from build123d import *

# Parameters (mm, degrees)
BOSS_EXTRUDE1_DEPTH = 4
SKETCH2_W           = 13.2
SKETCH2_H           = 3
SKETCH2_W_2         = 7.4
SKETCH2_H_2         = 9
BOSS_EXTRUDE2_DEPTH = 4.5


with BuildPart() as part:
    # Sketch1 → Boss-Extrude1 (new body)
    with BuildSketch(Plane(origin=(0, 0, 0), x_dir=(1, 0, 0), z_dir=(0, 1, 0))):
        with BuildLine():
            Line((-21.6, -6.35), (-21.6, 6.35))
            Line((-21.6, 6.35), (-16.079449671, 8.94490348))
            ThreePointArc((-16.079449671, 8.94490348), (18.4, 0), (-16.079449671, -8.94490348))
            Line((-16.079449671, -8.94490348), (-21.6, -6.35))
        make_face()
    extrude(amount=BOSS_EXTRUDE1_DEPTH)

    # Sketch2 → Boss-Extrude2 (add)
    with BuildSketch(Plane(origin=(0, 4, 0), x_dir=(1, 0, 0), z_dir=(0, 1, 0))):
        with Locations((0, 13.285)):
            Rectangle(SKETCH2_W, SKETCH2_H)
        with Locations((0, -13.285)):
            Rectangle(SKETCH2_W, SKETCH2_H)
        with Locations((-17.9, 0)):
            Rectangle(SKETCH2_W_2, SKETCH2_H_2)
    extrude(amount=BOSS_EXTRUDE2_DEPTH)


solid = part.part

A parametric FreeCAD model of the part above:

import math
import FreeCAD as App
import Part
import Sketcher

doc = App.newDocument("Part")
params = doc.addObject("Spreadsheet::Sheet", "Params")
for row, (alias, value) in enumerate([
    ("sketch1_radius", "18.4 mm"),
    ("sketch1_height", "12.7 mm"),
    ("sketch1_length", "6.1 mm"),
    ("pad1_length", "4 mm"),
    ("sketch2_height", "3 mm"),
    ("sketch2_height2", "9 mm"),
    ("sketch2_width", "13.2 mm"),
    ("sketch2_width2", "7.4 mm"),
    ("pad2_length", "4.5 mm"),
], start=1):
    params.set(f"A{row}", alias)
    params.set(f"B{row}", "=" + value)
    params.setAlias(f"B{row}", alias)

body = doc.addObject("PartDesign::Body", "Body")

sketch1 = body.newObject("Sketcher::SketchObject", "Sketch")
sketch1.AttachmentSupport = (doc.getObject("XZ_Plane"), [""])
sketch1.MapMode = "FlatFace"
sketch1.addGeometry([
    Part.LineSegment(App.Vector(-21.6, -6.35, 0), App.Vector(-21.6, 6.35, 0)),
    Part.LineSegment(App.Vector(-21.6, 6.35, 0), App.Vector(-16.07945, 8.944903, 0)),
    Part.ArcOfCircle(Part.Circle(App.Vector(0, 0, 0), App.Vector(0, 0, 1), 18.4), math.radians(-150.913069), math.radians(150.913069)),
    Part.LineSegment(App.Vector(-16.07945, -8.944903, 0), App.Vector(-21.6, -6.35, 0)),
], False)
sketch1.addConstraint([
    Sketcher.Constraint("Coincident", 0, 2, 1, 1),
    Sketcher.Constraint("Coincident", 1, 2, 2, 2),
    Sketcher.Constraint("Coincident", 2, 1, 3, 1),
    Sketcher.Constraint("Coincident", 3, 2, 0, 1),
    Sketcher.Constraint("Vertical", 0),
    Sketcher.Constraint("Coincident", 2, 3, -1, 1),
    Sketcher.Constraint("Vertical", 1, 2, 2, 1),
    Sketcher.Constraint("Equal", 1, 3),
    Sketcher.Constraint("Radius", 2, 18.4),
    Sketcher.Constraint("DistanceY", 0, 1, 0, 2, 12.7),
    Sketcher.Constraint("Distance", 1, 6.1),
    Sketcher.Constraint("DistanceX", 0, 2, -1, 1, 21.6),
])
sketch1.setExpression("Constraints[8]", "Params.sketch1_radius")
sketch1.setExpression("Constraints[9]", "Params.sketch1_height")
sketch1.setExpression("Constraints[10]", "Params.sketch1_length")
pad1 = body.newObject("PartDesign::Pad", "Pad")
pad1.Profile = sketch1
pad1.setExpression("Length", "Params.pad1_length")
pad1.Reversed = True

sketch2 = body.newObject("Sketcher::SketchObject", "Sketch001")
sketch2.AttachmentSupport = (doc.getObject("XZ_Plane"), [""])
sketch2.MapMode = "FlatFace"
sketch2.AttachmentOffset = App.Placement(App.Vector(0, 0, -4), App.Rotation())
sketch2.addGeometry([
    Part.LineSegment(App.Vector(-6.6, -14.785, 0), App.Vector(-6.6, -11.785, 0)),
    Part.LineSegment(App.Vector(-6.6, -11.785, 0), App.Vector(6.6, -11.785, 0)),
    Part.LineSegment(App.Vector(6.6, -11.785, 0), App.Vector(6.6, -14.785, 0)),
    Part.LineSegment(App.Vector(6.6, -14.785, 0), App.Vector(-6.6, -14.785, 0)),
    Part.LineSegment(App.Vector(-6.6, 11.785, 0), App.Vector(-6.6, 14.785, 0)),
    Part.LineSegment(App.Vector(-6.6, 14.785, 0), App.Vector(6.6, 14.785, 0)),
    Part.LineSegment(App.Vector(6.6, 14.785, 0), App.Vector(6.6, 11.785, 0)),
    Part.LineSegment(App.Vector(6.6, 11.785, 0), App.Vector(-6.6, 11.785, 0)),
    Part.LineSegment(App.Vector(-21.6, -4.5, 0), App.Vector(-21.6, 4.5, 0)),
    Part.LineSegment(App.Vector(-21.6, 4.5, 0), App.Vector(-14.2, 4.5, 0)),
    Part.LineSegment(App.Vector(-14.2, 4.5, 0), App.Vector(-14.2, -4.5, 0)),
    Part.LineSegment(App.Vector(-14.2, -4.5, 0), App.Vector(-21.6, -4.5, 0)),
], False)
sketch2.addConstraint([
    Sketcher.Constraint("Coincident", 0, 2, 1, 1),
    Sketcher.Constraint("Coincident", 1, 2, 2, 1),
    Sketcher.Constraint("Coincident", 2, 2, 3, 1),
    Sketcher.Constraint("Coincident", 3, 2, 0, 1),
    Sketcher.Constraint("Coincident", 4, 2, 5, 1),
    Sketcher.Constraint("Coincident", 5, 2, 6, 1),
    Sketcher.Constraint("Coincident", 6, 2, 7, 1),
    Sketcher.Constraint("Coincident", 7, 2, 4, 1),
    Sketcher.Constraint("Coincident", 8, 2, 9, 1),
    Sketcher.Constraint("Coincident", 9, 2, 10, 1),
    Sketcher.Constraint("Coincident", 10, 2, 11, 1),
    Sketcher.Constraint("Coincident", 11, 2, 8, 1),
    Sketcher.Constraint("Vertical", 0),
    Sketcher.Constraint("Horizontal", 1),
    Sketcher.Constraint("Vertical", 2),
    Sketcher.Constraint("Horizontal", 3),
    Sketcher.Constraint("Vertical", 4),
    Sketcher.Constraint("Horizontal", 5),
    Sketcher.Constraint("Vertical", 6),
    Sketcher.Constraint("Horizontal", 7),
    Sketcher.Constraint("Vertical", 8),
    Sketcher.Constraint("Horizontal", 9),
    Sketcher.Constraint("Vertical", 10),
    Sketcher.Constraint("Horizontal", 11),
    Sketcher.Constraint("Symmetric", 2, 2, 4, 2, -1, 1),
    Sketcher.Constraint("Symmetric", 0, 2, 6, 2, -1, 1),
    Sketcher.Constraint("Vertical", 3, 2, 4, 2),
    Sketcher.Constraint("DistanceY", 0, 1, 0, 2, 3.0),
    Sketcher.Constraint("DistanceY", 8, 1, 8, 2, 9.0),
    Sketcher.Constraint("DistanceX", 1, 1, 1, 2, 13.2),
    Sketcher.Constraint("DistanceX", 9, 1, 9, 2, 7.4),
    Sketcher.Constraint("DistanceX", 8, 2, 7, 2, 15.0),
    Sketcher.Constraint("DistanceY", -1, 1, 8, 2, 4.5),
    Sketcher.Constraint("DistanceY", 0, 2, 4, 2, 26.57),
])
sketch2.setExpression("Constraints[27]", "Params.sketch2_height")
sketch2.setExpression("Constraints[28]", "Params.sketch2_height2")
sketch2.setExpression("Constraints[29]", "Params.sketch2_width")
sketch2.setExpression("Constraints[30]", "Params.sketch2_width2")
pad2 = body.newObject("PartDesign::Pad", "Pad001")
pad2.Profile = sketch2
pad2.setExpression("Length", "Params.pad2_length")
pad2.Reversed = True

doc.recompute()
